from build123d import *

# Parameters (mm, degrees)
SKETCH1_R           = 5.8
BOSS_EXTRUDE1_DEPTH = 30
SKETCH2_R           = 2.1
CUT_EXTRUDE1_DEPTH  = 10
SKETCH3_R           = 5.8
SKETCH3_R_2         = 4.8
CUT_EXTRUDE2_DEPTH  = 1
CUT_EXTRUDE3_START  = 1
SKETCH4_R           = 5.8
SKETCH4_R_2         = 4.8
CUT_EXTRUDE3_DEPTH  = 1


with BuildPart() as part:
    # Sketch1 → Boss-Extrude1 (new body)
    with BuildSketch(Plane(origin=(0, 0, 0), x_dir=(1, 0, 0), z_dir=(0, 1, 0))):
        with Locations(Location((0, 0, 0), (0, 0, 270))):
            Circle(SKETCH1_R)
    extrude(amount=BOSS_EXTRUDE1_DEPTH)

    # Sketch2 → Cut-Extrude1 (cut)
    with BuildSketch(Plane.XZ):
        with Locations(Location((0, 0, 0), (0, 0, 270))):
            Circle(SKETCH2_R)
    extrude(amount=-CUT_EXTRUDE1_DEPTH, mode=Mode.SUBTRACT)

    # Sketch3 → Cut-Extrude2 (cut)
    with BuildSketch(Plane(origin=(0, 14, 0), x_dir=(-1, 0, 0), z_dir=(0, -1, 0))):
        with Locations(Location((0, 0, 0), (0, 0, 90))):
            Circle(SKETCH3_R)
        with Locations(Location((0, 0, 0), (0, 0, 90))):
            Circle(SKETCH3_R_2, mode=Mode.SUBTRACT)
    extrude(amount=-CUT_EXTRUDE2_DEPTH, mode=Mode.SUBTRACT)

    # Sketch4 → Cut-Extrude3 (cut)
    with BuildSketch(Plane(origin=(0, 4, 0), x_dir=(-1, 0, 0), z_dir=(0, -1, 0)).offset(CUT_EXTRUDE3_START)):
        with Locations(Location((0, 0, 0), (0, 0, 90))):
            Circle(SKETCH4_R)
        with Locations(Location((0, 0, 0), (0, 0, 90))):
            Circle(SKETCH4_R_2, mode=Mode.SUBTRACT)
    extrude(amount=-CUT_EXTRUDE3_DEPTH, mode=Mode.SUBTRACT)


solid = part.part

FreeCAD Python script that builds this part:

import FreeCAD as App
import Part
import Sketcher
Q = App.Units.Quantity

doc = App.newDocument("Part")
body = doc.addObject("PartDesign::Body", "Body")

sketch1 = body.newObject("Sketcher::SketchObject", "Sketch")
sketch1.AttachmentSupport = (doc.getObject("XZ_Plane"), [""])
sketch1.MapMode = "FlatFace"
sketch1.addGeometry(Part.Circle(App.Vector(0, 0, 0), App.Vector(0, 0, 1), 6), False)
sketch1.addConstraint(Sketcher.Constraint("Coincident", 0, 3, -1, 1))
sketch1.addConstraint(Sketcher.Constraint("Diameter", 0, Q("11.6 mm")))
pad1 = body.newObject("PartDesign::Pad", "Pad")
pad1.Profile = sketch1
pad1.Length = 30
pad1.Reversed = True

sketch2 = body.newObject("Sketcher::SketchObject", "Sketch001")
sketch2.AttachmentSupport = (doc.getObject("XZ_Plane"), [""])
sketch2.MapMode = "FlatFace"
sketch2.addGeometry(Part.Circle(App.Vector(0, 0, 0), App.Vector(0, 0, 1), 2.1), False)
sketch2.addConstraint(Sketcher.Constraint("Coincident", 0, 3, -1, 1))
sketch2.addConstraint(Sketcher.Constraint("Diameter", 0, Q("4.2 mm")))
pocket1 = body.newObject("PartDesign::Pocket", "Pocket")
pocket1.Profile = sketch2
pocket1.Length = 10

sketch3 = body.newObject("Sketcher::SketchObject", "Sketch002")
sketch3.AttachmentSupport = (doc.getObject("XZ_Plane"), [""])
sketch3.MapMode = "FlatFace"
sketch3.AttachmentOffset = App.Placement(App.Vector(0, 0, -14), App.Rotation())
sketch3.addGeometry(Part.Circle(App.Vector(0, 0, 0), App.Vector(0, 0, 1), 5.8), False)
sketch3.addGeometry(Part.Circle(App.Vector(0, 0, 0), App.Vector(0, 0, 1), 4.8), False)
sketch3.addConstraint(Sketcher.Constraint("Coincident", 0, 3, -1, 1))
sketch3.addConstraint(Sketcher.Constraint("Coincident", 1, 3, -1, 1))
sketch3.addConstraint(Sketcher.Constraint("Diameter", 0, Q("11.6 mm")))
sketch3.addConstraint(Sketcher.Constraint("Diameter", 1, Q("9.6 mm")))
pocket2 = body.newObject("PartDesign::Pocket", "Pocket001")
pocket2.Profile = sketch3
pocket2.Length = 1

sketch4 = body.newObject("Sketcher::SketchObject", "Sketch003")
sketch4.AttachmentSupport = (doc.getObject("XZ_Plane"), [""])
sketch4.MapMode = "FlatFace"
sketch4.AttachmentOffset = App.Placement(App.Vector(0, 0, -3), App.Rotation())
sketch4.addGeometry(Part.Circle(App.Vector(0, 0, 0), App.Vector(0, 0, 1), 5.8), False)
sketch4.addGeometry(Part.Circle(App.Vector(0, 0, 0), App.Vector(0, 0, 1), 4.8), False)
sketch4.addConstraint(Sketcher.Constraint("Coincident", 0, 3, -1, 1))
sketch4.addConstraint(Sketcher.Constraint("Coincident", 1, 3, -1, 1))
sketch4.addConstraint(Sketcher.Constraint("Diameter", 0, Q("11.6 mm")))
sketch4.addConstraint(Sketcher.Constraint("Diameter", 1, Q("9.6 mm")))
pocket3 = body.newObject("PartDesign::Pocket", "Pocket002")
pocket3.Profile = sketch4
pocket3.Length = 1

doc.recompute()
